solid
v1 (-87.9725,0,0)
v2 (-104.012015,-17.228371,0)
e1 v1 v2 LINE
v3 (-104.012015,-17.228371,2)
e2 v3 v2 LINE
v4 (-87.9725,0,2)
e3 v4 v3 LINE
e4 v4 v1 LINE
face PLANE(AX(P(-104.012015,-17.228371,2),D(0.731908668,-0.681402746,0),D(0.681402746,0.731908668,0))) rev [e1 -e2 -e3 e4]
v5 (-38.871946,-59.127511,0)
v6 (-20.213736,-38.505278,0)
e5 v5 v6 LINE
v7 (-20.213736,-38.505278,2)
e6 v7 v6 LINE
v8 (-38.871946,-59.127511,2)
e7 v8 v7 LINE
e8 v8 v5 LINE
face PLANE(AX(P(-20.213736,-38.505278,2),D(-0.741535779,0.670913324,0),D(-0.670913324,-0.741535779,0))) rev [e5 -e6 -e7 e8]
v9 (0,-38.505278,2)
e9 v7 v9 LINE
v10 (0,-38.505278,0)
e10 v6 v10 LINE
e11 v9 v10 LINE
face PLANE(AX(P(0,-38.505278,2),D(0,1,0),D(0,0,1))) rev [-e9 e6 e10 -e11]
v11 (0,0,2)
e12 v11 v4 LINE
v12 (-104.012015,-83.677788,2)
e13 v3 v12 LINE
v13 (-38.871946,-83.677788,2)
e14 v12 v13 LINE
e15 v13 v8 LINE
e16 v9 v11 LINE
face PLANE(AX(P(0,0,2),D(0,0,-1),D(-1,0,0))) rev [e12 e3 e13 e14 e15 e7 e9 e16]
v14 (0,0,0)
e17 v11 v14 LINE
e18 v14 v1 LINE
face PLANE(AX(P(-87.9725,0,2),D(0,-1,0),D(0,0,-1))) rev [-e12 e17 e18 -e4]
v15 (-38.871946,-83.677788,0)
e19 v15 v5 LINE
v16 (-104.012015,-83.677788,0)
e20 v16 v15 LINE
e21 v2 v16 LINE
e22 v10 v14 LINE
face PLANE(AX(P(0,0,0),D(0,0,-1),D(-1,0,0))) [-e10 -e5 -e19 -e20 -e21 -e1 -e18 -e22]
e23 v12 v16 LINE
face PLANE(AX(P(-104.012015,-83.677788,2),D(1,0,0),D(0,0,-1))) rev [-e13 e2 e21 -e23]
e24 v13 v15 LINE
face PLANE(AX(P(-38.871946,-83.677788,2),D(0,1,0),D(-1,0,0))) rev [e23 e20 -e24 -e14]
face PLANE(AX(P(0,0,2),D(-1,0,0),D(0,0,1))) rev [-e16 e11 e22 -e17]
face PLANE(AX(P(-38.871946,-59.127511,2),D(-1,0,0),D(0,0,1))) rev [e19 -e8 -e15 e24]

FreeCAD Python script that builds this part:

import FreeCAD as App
import Part
import Sketcher

V = App.Vector
Q = App.Units.Quantity


def add_polygon(sketch, points):
    """Adds a closed chain of lines whose ends are joined by coincident constraints."""
    first, n = sketch.GeometryCount, len(points)
    for a, b in zip(points, points[1:] + points[:1]):
        sketch.addGeometry(Part.LineSegment(App.Vector(*a, 0), App.Vector(*b, 0)), False)
    for i in range(n):
        sketch.addConstraint(Sketcher.Constraint("Coincident", first + i, 2, first + (i + 1) % n, 1))

doc = App.newDocument("Part")
body = doc.addObject("PartDesign::Body", "Body")

sketch1 = body.newObject("Sketcher::SketchObject", "Sketch")
sketch1.AttachmentSupport = (doc.getObject("XY_Plane"), [""])
sketch1.MapMode = "FlatFace"
add_polygon(sketch1, [(-87.9725, 0), (-104.012015, -17.228371), (-104.012015, -83.677788), (-38.871946, -83.677788), (-38.871946, -59.127511), (-20.213736, -38.505278), (0, -38.505278), (0, 0)])
sketch1.addConstraint([
    Sketcher.Constraint("Vertical", 1),
    Sketcher.Constraint("Horizontal", 2),
    Sketcher.Constraint("Vertical", 3),
    Sketcher.Constraint("Horizontal", 5),
    Sketcher.Constraint("Vertical", 6),
    Sketcher.Constraint("Horizontal", 7),
    Sketcher.Constraint("Coincident", 6, 2, -1, 1),
    Sketcher.Constraint("DistanceX", 7, 2, 7, 1, Q("87.9725 mm")),
    Sketcher.Constraint("DistanceX", 2, 1, 2, 2, Q("65.140068 mm")),
    Sketcher.Constraint("DistanceY", 6, 1, 6, 2, Q("38.505278 mm")),
    Sketcher.Constraint("DistanceX", 5, 1, 5, 2, Q("20.213736 mm")),
    Sketcher.Constraint("DistanceY", 1, 2, 1, 1, Q("66.449417 mm")),
    Sketcher.Constraint("DistanceY", 3, 1, 3, 2, Q("24.550277 mm")),
    Sketcher.Constraint("DistanceY", 0, 2, -1, 1, Q("17.228371 mm")),
    Sketcher.Constraint("DistanceX", 3, 2, 4, 2, Q("18.658211 mm")),
])
pad1 = body.newObject("PartDesign::Pad", "Pad")
pad1.Profile = sketch1
pad1.Length = 2

doc.recompute()
